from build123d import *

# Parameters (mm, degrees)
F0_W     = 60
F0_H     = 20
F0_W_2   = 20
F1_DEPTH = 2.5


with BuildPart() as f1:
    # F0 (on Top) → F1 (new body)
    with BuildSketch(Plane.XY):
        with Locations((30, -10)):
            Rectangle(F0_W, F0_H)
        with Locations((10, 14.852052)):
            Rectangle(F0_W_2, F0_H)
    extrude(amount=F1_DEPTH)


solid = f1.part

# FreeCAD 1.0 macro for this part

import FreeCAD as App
import Part
import Sketcher
from FreeCAD import Vector
Q = App.Units.Quantity

doc = App.newDocument("Part")
body = doc.addObject("PartDesign::Body", "Body")
body.AllowCompound = True

# Sketch on XY plane
sketch1 = body.newObject("Sketcher::SketchObject", "Sketch")
sketch1.AttachmentSupport = (doc.getObject("XY_Plane"), [""])
sketch1.MapMode = "FlatFace"
sketch1.addGeometry([
    Part.LineSegment(Vector(0, 0, 0), Vector(0, -20, 0)),  # 0
    Part.LineSegment(Vector(0, -20, 0), Vector(60, -20, 0)),  # 1
    Part.LineSegment(Vector(60, -20, 0), Vector(60, 0, 0)),  # 2
    Part.LineSegment(Vector(60, 0, 0), Vector(0, 0, 0)),  # 3
    Part.LineSegment(Vector(0, 25, 0), Vector(0, 5, 0)),  # 4
    Part.LineSegment(Vector(0, 5, 0), Vector(20, 5, 0)),  # 5
    Part.LineSegment(Vector(20, 5, 0), Vector(20, 25, 0)),  # 6
    Part.LineSegment(Vector(20, 25, 0), Vector(0, 25, 0)),  # 7
], False)
sketch1.addConstraint([
    Sketcher.Constraint("Coincident", 0, 2, 1, 1),
    Sketcher.Constraint("Coincident", 1, 2, 2, 1),
    Sketcher.Constraint("Coincident", 2, 2, 3, 1),
    Sketcher.Constraint("Coincident", 3, 2, 0, 1),
    Sketcher.Constraint("Coincident", 4, 2, 5, 1),
    Sketcher.Constraint("Coincident", 5, 2, 6, 1),
    Sketcher.Constraint("Coincident", 6, 2, 7, 1),
    Sketcher.Constraint("Coincident", 7, 2, 4, 1),
    Sketcher.Constraint("Vertical", 0),
    Sketcher.Constraint("Horizontal", 1),
    Sketcher.Constraint("Vertical", 2),
    Sketcher.Constraint("Horizontal", 3),
    Sketcher.Constraint("Vertical", 4),
    Sketcher.Constraint("Horizontal", 5),
    Sketcher.Constraint("Vertical", 6),
    Sketcher.Constraint("Horizontal", 7),
    Sketcher.Constraint("Coincident", 3, 2, -1, 1),
    Sketcher.Constraint("PointOnObject", 4, 2, -2),
    Sketcher.Constraint("Equal", 7, 0),
    Sketcher.Constraint("Equal", 2, 4),
    Sketcher.Constraint("DistanceX", 1, 1, 1, 2, Q("60 mm")),
    Sketcher.Constraint("DistanceX", 5, 1, 5, 2, Q("20 mm")),
    Sketcher.Constraint("DistanceY", -1, 1, 4, 2, Q("4.852052 mm")),
])
pad1 = body.newObject("PartDesign::Pad", "Pad")
pad1.Profile = sketch1
pad1.Length = 2.5

doc.recompute()
